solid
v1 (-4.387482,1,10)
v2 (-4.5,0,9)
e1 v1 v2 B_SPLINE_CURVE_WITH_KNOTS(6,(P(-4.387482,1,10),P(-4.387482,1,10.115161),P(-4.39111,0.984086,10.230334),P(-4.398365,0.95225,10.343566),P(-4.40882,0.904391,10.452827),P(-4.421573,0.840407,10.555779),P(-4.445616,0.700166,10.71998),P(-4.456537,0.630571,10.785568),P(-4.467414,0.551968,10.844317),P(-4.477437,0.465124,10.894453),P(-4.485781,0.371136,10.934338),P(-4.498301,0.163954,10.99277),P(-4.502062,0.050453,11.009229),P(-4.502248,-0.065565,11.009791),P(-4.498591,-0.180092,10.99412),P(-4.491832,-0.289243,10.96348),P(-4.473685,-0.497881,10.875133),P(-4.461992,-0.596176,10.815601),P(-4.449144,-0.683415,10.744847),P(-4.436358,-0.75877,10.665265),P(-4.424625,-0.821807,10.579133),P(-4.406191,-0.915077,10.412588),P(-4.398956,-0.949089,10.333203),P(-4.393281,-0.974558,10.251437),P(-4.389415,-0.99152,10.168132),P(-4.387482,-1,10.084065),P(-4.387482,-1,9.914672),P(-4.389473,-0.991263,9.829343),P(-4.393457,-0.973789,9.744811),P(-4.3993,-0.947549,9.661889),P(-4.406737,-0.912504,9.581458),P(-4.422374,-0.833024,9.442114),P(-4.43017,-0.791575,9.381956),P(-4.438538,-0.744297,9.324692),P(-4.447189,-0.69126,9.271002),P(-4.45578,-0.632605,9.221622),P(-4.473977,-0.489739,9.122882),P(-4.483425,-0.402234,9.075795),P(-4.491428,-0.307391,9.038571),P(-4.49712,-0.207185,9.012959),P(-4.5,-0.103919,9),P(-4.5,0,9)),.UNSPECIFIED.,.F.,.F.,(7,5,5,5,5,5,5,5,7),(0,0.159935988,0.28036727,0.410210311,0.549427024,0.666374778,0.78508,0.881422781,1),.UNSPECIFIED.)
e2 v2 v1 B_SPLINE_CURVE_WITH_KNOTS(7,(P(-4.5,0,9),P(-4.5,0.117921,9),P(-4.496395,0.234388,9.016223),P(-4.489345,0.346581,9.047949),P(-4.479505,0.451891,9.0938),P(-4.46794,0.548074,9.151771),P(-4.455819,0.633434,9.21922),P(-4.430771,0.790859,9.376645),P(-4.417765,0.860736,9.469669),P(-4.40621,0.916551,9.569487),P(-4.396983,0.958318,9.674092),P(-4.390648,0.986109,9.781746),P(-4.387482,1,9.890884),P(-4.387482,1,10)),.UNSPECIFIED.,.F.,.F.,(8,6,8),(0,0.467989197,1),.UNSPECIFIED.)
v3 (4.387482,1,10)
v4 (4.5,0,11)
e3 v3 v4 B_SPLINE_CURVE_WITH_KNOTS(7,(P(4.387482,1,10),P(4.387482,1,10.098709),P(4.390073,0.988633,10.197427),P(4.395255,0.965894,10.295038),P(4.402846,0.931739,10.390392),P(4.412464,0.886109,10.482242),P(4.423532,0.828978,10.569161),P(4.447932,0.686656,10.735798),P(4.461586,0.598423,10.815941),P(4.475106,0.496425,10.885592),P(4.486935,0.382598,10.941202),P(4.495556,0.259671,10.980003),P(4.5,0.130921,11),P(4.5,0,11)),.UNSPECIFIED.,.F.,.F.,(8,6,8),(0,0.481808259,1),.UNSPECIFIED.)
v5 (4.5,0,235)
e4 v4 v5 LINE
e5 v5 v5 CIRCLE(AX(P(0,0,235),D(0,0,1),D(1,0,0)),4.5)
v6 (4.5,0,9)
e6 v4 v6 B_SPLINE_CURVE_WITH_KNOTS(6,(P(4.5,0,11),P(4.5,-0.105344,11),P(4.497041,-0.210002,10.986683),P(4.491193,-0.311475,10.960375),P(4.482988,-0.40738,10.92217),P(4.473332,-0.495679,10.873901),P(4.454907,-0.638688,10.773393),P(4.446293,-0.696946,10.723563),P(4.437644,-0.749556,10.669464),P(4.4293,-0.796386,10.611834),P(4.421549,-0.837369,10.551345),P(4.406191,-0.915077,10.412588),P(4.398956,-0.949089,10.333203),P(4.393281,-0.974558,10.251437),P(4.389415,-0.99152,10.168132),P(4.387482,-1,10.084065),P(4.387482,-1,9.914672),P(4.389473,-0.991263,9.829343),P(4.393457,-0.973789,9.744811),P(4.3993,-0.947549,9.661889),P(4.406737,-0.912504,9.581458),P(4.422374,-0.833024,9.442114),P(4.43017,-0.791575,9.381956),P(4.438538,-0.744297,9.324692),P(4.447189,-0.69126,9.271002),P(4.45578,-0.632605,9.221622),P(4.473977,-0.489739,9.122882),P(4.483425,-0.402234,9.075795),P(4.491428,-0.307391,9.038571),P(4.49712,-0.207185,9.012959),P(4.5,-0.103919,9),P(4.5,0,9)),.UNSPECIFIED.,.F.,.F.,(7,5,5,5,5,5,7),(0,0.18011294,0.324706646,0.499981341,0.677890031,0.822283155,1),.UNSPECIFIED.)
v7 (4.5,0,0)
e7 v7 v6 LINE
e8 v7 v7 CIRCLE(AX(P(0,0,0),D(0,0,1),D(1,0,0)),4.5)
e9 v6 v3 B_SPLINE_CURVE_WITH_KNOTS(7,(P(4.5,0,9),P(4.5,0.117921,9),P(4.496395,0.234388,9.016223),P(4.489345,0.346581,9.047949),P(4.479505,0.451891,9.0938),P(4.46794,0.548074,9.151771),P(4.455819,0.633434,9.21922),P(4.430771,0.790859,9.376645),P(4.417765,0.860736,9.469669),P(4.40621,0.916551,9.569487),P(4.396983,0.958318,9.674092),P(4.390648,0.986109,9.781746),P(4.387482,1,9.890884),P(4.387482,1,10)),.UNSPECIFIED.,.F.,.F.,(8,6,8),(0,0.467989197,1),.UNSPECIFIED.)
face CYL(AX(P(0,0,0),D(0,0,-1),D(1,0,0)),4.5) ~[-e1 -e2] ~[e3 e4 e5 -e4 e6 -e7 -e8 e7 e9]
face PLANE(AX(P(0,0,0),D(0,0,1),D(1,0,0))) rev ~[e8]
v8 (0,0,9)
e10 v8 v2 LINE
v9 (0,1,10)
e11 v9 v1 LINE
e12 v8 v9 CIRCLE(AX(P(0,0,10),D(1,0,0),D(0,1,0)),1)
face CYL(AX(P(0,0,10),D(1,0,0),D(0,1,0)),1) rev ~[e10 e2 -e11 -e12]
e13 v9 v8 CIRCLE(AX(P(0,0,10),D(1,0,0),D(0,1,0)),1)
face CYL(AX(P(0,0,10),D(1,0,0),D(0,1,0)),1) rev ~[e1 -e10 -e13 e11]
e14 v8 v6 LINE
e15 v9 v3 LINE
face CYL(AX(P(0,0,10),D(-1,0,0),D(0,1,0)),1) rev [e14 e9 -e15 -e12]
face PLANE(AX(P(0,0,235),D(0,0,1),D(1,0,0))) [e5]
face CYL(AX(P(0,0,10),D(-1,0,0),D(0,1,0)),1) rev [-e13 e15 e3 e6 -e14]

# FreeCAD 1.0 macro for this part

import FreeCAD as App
import Part
import Sketcher
Q = App.Units.Quantity

doc = App.newDocument("Part")
body = doc.addObject("PartDesign::Body", "Body")

# Sketch on XY plane
sketch1 = body.newObject("Sketcher::SketchObject", "Sketch")
sketch1.AttachmentSupport = (doc.getObject("XY_Plane"), [""])
sketch1.MapMode = "FlatFace"
sketch1.addGeometry(Part.Circle(App.Vector(0, 0, 0), App.Vector(0, 0, 1), 4.5), False)
sketch1.addConstraint([
    Sketcher.Constraint("Coincident", 0, 3, -1, 1),
    Sketcher.Constraint("Diameter", 0, Q("9 mm")),
])
pad1 = body.newObject("PartDesign::Pad", "Pad")
pad1.Profile = sketch1
pad1.Length = 235

# Sketch on YZ plane
sketch2 = body.newObject("Sketcher::SketchObject", "Sketch001")
sketch2.AttachmentSupport = (doc.getObject("YZ_Plane"), [""])
sketch2.MapMode = "FlatFace"
sketch2.addGeometry(Part.Circle(App.Vector(0, 10, 0), App.Vector(0, 0, 1), 1), False)
sketch2.addConstraint([
    Sketcher.Constraint("PointOnObject", 0, 3, -2),
    Sketcher.Constraint("Diameter", 0, Q("2 mm")),
    Sketcher.Constraint("DistanceY", -1, 1, 0, 3, Q("10 mm")),
])
pocket1 = body.newObject("PartDesign::Pocket", "Pocket")
pocket1.Profile = sketch2
pocket1.Type = "ThroughAll"
pocket1.Midplane = True

doc.recompute()
